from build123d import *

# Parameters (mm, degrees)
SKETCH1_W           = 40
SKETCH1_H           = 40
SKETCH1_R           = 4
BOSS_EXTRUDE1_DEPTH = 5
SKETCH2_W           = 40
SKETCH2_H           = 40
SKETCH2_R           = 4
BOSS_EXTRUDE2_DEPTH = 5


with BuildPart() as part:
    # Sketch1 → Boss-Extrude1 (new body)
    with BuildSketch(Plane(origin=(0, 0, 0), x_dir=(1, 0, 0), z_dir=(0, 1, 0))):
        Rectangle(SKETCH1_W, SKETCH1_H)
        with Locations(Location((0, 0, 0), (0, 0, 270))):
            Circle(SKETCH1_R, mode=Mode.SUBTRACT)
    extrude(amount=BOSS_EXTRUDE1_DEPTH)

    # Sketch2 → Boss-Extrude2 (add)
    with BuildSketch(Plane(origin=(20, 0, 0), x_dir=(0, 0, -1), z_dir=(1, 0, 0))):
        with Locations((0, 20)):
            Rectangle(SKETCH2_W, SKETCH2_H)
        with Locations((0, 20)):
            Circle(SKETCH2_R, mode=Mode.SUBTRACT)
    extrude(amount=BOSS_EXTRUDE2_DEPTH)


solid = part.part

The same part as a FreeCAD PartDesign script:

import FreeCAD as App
import Part
import Sketcher
from FreeCAD import Vector
Q = App.Units.Quantity


def add_polygon(sketch, points):
    """Adds a closed chain of lines whose ends are joined by coincident constraints."""
    first, n = sketch.GeometryCount, len(points)
    for a, b in zip(points, points[1:] + points[:1]):
        sketch.addGeometry(Part.LineSegment(App.Vector(*a, 0), App.Vector(*b, 0)), False)
    for i in range(n):
        sketch.addConstraint(Sketcher.Constraint("Coincident", first + i, 2, first + (i + 1) % n, 1))

doc = App.newDocument("Part")
body = doc.addObject("PartDesign::Body", "Body")

# Sketch on XZ plane
sketch1 = body.newObject("Sketcher::SketchObject", "Sketch")
sketch1.AttachmentSupport = (doc.getObject("XZ_Plane"), [""])
sketch1.MapMode = "FlatFace"
add_polygon(sketch1, [(-20, -20), (-20, 20), (20, 20), (20, -20)])  # lines 0-3
sketch1.addGeometry(Part.Circle(Vector(0, 0, 0), Vector(0, 0, 1), 4), False)  # 4
sketch1.addConstraint([
    Sketcher.Constraint("Vertical", 0),
    Sketcher.Constraint("Horizontal", 1),
    Sketcher.Constraint("Vertical", 2),
    Sketcher.Constraint("Horizontal", 3),
    Sketcher.Constraint("Coincident", 4, 3, -1, 1),
    Sketcher.Constraint("Symmetric", 0, 2, 2, 2, -1, 1),
    Sketcher.Constraint("Equal", 3, 0),
    Sketcher.Constraint("Diameter", 4, Q("8 mm")),
    Sketcher.Constraint("DistanceX", 1, 1, 1, 2, Q("40 mm")),
])
pad1 = body.newObject("PartDesign::Pad", "Pad")
pad1.Profile = sketch1
pad1.Length = 5
pad1.Reversed = True

# Sketch on YZ plane
sketch2 = body.newObject("Sketcher::SketchObject", "Sketch001")
sketch2.AttachmentSupport = (doc.getObject("YZ_Plane"), [""])
sketch2.MapMode = "FlatFace"
sketch2.AttachmentOffset = App.Placement(Vector(0, 0, 20), App.Rotation())
add_polygon(sketch2, [(40, 20), (0, 20), (0, -20), (40, -20)])  # lines 0-3
sketch2.addGeometry(Part.Circle(Vector(20, 0, 0), Vector(0, 0, 1), 4), False)  # 4
sketch2.addConstraint([
    Sketcher.Constraint("Horizontal", 0),
    Sketcher.Constraint("Vertical", 1),
    Sketcher.Constraint("Horizontal", 2),
    Sketcher.Constraint("Vertical", 3),
    Sketcher.Constraint("Symmetric", 0, 2, 1, 2, -1, 1),
    Sketcher.Constraint("PointOnObject", 4, 3, -1),
    Sketcher.Constraint("Equal", 2, 1),
    Sketcher.Constraint("Diameter", 4, Q("8 mm")),
    Sketcher.Constraint("DistanceX", 0, 2, 0, 1, Q("40 mm")),
    Sketcher.Constraint("DistanceX", -1, 1, 4, 3, Q("20 mm")),
])
pad2 = body.newObject("PartDesign::Pad", "Pad001")
pad2.Profile = sketch2
pad2.Length = 5

doc.recompute()
